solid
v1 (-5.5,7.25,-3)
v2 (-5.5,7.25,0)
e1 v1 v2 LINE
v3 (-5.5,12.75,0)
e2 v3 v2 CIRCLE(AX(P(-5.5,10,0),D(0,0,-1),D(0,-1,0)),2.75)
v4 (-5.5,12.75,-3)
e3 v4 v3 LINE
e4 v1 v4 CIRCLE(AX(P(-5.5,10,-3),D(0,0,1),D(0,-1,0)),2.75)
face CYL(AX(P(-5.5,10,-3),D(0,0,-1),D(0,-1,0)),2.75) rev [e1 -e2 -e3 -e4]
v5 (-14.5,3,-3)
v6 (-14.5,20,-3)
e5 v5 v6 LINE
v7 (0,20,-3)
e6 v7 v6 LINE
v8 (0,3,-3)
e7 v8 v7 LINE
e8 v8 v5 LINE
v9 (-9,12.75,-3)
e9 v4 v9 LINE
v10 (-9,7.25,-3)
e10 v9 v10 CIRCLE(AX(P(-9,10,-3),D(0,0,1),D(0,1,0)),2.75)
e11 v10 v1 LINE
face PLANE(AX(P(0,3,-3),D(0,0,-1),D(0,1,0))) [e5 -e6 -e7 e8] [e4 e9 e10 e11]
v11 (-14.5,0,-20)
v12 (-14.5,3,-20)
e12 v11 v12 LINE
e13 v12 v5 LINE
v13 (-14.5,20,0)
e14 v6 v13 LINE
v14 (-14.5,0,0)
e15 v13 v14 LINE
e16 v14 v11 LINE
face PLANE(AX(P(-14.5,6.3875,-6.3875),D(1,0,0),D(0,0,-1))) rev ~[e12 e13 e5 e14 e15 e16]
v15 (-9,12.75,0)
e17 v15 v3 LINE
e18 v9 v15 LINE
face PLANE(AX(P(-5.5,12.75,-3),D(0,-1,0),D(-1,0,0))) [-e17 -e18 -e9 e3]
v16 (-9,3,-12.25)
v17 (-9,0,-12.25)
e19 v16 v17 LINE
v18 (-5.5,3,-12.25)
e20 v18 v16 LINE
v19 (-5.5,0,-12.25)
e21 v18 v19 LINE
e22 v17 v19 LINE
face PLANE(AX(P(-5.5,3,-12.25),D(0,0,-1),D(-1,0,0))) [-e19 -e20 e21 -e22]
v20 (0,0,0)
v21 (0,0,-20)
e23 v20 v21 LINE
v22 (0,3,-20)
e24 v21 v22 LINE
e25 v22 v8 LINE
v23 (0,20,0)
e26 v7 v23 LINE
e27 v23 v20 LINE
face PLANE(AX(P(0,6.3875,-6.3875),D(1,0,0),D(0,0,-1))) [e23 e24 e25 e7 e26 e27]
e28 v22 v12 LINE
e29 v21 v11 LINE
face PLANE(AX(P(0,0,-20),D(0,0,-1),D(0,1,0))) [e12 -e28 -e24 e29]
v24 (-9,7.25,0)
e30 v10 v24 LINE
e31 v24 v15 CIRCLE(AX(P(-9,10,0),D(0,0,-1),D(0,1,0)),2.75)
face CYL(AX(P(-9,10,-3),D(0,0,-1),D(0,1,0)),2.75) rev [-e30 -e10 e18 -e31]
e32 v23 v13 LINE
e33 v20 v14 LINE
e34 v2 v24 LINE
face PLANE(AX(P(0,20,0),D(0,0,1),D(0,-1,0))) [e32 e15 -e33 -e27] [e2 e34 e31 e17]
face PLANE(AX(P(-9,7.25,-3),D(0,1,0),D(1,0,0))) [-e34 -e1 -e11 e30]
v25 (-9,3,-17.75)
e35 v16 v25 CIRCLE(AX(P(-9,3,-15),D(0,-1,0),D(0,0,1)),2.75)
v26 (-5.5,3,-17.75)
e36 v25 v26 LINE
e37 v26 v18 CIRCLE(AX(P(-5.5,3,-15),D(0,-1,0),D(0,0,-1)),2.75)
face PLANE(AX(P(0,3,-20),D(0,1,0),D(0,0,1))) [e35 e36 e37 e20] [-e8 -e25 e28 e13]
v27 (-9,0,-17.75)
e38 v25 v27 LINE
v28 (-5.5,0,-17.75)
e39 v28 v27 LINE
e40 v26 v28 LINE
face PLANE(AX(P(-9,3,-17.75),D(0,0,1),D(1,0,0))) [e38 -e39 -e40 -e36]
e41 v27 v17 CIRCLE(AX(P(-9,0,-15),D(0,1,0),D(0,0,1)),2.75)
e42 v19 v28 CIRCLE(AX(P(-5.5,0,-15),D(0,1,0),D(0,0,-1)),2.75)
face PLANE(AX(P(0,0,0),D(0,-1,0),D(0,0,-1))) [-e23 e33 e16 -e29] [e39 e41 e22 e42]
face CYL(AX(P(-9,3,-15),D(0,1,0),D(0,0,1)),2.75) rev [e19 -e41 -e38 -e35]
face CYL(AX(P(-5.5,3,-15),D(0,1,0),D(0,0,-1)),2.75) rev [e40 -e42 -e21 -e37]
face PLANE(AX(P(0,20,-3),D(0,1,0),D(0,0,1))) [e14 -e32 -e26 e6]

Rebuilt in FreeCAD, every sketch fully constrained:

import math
import FreeCAD as App
import Part
import Sketcher

doc = App.newDocument("Part")
body = doc.addObject("PartDesign::Body", "Body")

sketch1 = body.newObject("Sketcher::SketchObject", "Sketch")
sketch1.AttachmentSupport = (doc.getObject("YZ_Plane"), [""])
sketch1.MapMode = "FlatFace"
sketch1.addGeometry(Part.LineSegment(App.Vector(20, 0, 0), App.Vector(0, 0, 0)), False)
sketch1.addGeometry(Part.LineSegment(App.Vector(0, 0, 0), App.Vector(0, -20, 0)), False)
sketch1.addGeometry(Part.LineSegment(App.Vector(0, -20, 0), App.Vector(3, -20, 0)), False)
sketch1.addGeometry(Part.LineSegment(App.Vector(3, -20, 0), App.Vector(3, -3, 0)), False)
sketch1.addGeometry(Part.LineSegment(App.Vector(3, -3, 0), App.Vector(20, -3, 0)), False)
sketch1.addGeometry(Part.LineSegment(App.Vector(20, -3, 0), App.Vector(20, 0, 0)), False)
sketch1.addConstraint(Sketcher.Constraint("Coincident", 0, 2, 1, 1))
sketch1.addConstraint(Sketcher.Constraint("Coincident", 1, 2, 2, 1))
sketch1.addConstraint(Sketcher.Constraint("Coincident", 2, 2, 3, 1))
sketch1.addConstraint(Sketcher.Constraint("Coincident", 3, 2, 4, 1))
sketch1.addConstraint(Sketcher.Constraint("Coincident", 4, 2, 5, 1))
sketch1.addConstraint(Sketcher.Constraint("Coincident", 5, 2, 0, 1))
sketch1.addConstraint(Sketcher.Constraint("Horizontal", 0))
sketch1.addConstraint(Sketcher.Constraint("Vertical", 1))
sketch1.addConstraint(Sketcher.Constraint("Horizontal", 2))
sketch1.addConstraint(Sketcher.Constraint("Vertical", 3))
sketch1.addConstraint(Sketcher.Constraint("Horizontal", 4))
sketch1.addConstraint(Sketcher.Constraint("Vertical", 5))
sketch1.addConstraint(Sketcher.Constraint("Coincident", 0, 2, -1, 1))
sketch1.addConstraint(Sketcher.Constraint("Equal", 0, 1))
sketch1.addConstraint(Sketcher.Constraint("Equal", 4, 3))
sketch1.addConstraint(Sketcher.Constraint("DistanceX", 0, 2, 0, 1, 20.0))
sketch1.addConstraint(Sketcher.Constraint("DistanceX", 2, 1, 2, 2, 3.0))
pad1 = body.newObject("PartDesign::Pad", "Pad")
pad1.Profile = sketch1
pad1.Length = 14.5
pad1.Reversed = True

sketch2 = body.newObject("Sketcher::SketchObject", "Sketch001")
sketch2.AttachmentSupport = (doc.getObject("XY_Plane"), [""])
sketch2.MapMode = "FlatFace"
sketch2.AttachmentOffset = App.Placement(App.Vector(0, 0, -3), App.Rotation())
sketch2.addGeometry(Part.LineSegment(App.Vector(-9, 12.8, 0), App.Vector(-5.5, 12.8, 0)), False)
sketch2.addGeometry(Part.ArcOfCircle(Part.Circle(App.Vector(-5.5, 10, 0), App.Vector(0, 0, 1), 2.8), math.radians(-90), math.radians(90)), False)
sketch2.addGeometry(Part.LineSegment(App.Vector(-5.5, 7.2, 0), App.Vector(-9, 7.2, 0)), False)
sketch2.addGeometry(Part.ArcOfCircle(Part.Circle(App.Vector(-9, 10, 0), App.Vector(0, 0, 1), 2.8), math.radians(90), math.radians(270)), False)
sketch2.addConstraint(Sketcher.Constraint("Tangent", 0, 2, 1, 2))
sketch2.addConstraint(Sketcher.Constraint("Tangent", 1, 1, 2, 1))
sketch2.addConstraint(Sketcher.Constraint("Tangent", 2, 2, 3, 2))
sketch2.addConstraint(Sketcher.Constraint("Tangent", 3, 1, 0, 1))
sketch2.addConstraint(Sketcher.Constraint("Horizontal", 0))
sketch2.addConstraint(Sketcher.Constraint("Horizontal", 2))
sketch2.addConstraint(Sketcher.Constraint("Radius", 1, 2.75))
sketch2.addConstraint(Sketcher.Constraint("DistanceX", 0, 1, 0, 2, 3.5))
sketch2.addConstraint(Sketcher.Constraint("DistanceY", -1, 1, 1, 3, 10.0))
sketch2.addConstraint(Sketcher.Constraint("DistanceX", 3, 3, -1, 1, 9.0))
pocket1 = body.newObject("PartDesign::Pocket", "Pocket")
pocket1.Profile = sketch2
pocket1.Type = "ThroughAll"
pocket1.Reversed = True

sketch3 = body.newObject("Sketcher::SketchObject", "Sketch002")
sketch3.AttachmentSupport = (doc.getObject("XZ_Plane"), [""])
sketch3.MapMode = "FlatFace"
sketch3.AttachmentOffset = App.Placement(App.Vector(0, 0, -3), App.Rotation())
sketch3.addGeometry(Part.LineSegment(App.Vector(-9, -12.2, 0), App.Vector(-5.5, -12.2, 0)), False)
sketch3.addGeometry(Part.ArcOfCircle(Part.Circle(App.Vector(-5.5, -15, 0), App.Vector(0, 0, 1), 2.8), math.radians(-90), math.radians(90)), False)
sketch3.addGeometry(Part.LineSegment(App.Vector(-5.5, -17.8, 0), App.Vector(-9, -17.8, 0)), False)
sketch3.addGeometry(Part.ArcOfCircle(Part.Circle(App.Vector(-9, -15, 0), App.Vector(0, 0, 1), 2.8), math.radians(90), math.radians(270)), False)
sketch3.addConstraint(Sketcher.Constraint("Tangent", 0, 2, 1, 2))
sketch3.addConstraint(Sketcher.Constraint("Tangent", 1, 1, 2, 1))
sketch3.addConstraint(Sketcher.Constraint("Tangent", 2, 2, 3, 2))
sketch3.addConstraint(Sketcher.Constraint("Tangent", 3, 1, 0, 1))
sketch3.addConstraint(Sketcher.Constraint("Horizontal", 0))
sketch3.addConstraint(Sketcher.Constraint("Horizontal", 2))
sketch3.addConstraint(Sketcher.Constraint("Radius", 1, 2.75))
sketch3.addConstraint(Sketcher.Constraint("DistanceX", 0, 1, 0, 2, 3.5))
sketch3.addConstraint(Sketcher.Constraint("DistanceY", 1, 3, -1, 1, 15.0))
sketch3.addConstraint(Sketcher.Constraint("DistanceX", 3, 3, -1, 1, 9.0))
pocket2 = body.newObject("PartDesign::Pocket", "Pocket001")
pocket2.Profile = sketch3
pocket2.Type = "ThroughAll"
pocket2.Reversed = True

doc.recompute()
